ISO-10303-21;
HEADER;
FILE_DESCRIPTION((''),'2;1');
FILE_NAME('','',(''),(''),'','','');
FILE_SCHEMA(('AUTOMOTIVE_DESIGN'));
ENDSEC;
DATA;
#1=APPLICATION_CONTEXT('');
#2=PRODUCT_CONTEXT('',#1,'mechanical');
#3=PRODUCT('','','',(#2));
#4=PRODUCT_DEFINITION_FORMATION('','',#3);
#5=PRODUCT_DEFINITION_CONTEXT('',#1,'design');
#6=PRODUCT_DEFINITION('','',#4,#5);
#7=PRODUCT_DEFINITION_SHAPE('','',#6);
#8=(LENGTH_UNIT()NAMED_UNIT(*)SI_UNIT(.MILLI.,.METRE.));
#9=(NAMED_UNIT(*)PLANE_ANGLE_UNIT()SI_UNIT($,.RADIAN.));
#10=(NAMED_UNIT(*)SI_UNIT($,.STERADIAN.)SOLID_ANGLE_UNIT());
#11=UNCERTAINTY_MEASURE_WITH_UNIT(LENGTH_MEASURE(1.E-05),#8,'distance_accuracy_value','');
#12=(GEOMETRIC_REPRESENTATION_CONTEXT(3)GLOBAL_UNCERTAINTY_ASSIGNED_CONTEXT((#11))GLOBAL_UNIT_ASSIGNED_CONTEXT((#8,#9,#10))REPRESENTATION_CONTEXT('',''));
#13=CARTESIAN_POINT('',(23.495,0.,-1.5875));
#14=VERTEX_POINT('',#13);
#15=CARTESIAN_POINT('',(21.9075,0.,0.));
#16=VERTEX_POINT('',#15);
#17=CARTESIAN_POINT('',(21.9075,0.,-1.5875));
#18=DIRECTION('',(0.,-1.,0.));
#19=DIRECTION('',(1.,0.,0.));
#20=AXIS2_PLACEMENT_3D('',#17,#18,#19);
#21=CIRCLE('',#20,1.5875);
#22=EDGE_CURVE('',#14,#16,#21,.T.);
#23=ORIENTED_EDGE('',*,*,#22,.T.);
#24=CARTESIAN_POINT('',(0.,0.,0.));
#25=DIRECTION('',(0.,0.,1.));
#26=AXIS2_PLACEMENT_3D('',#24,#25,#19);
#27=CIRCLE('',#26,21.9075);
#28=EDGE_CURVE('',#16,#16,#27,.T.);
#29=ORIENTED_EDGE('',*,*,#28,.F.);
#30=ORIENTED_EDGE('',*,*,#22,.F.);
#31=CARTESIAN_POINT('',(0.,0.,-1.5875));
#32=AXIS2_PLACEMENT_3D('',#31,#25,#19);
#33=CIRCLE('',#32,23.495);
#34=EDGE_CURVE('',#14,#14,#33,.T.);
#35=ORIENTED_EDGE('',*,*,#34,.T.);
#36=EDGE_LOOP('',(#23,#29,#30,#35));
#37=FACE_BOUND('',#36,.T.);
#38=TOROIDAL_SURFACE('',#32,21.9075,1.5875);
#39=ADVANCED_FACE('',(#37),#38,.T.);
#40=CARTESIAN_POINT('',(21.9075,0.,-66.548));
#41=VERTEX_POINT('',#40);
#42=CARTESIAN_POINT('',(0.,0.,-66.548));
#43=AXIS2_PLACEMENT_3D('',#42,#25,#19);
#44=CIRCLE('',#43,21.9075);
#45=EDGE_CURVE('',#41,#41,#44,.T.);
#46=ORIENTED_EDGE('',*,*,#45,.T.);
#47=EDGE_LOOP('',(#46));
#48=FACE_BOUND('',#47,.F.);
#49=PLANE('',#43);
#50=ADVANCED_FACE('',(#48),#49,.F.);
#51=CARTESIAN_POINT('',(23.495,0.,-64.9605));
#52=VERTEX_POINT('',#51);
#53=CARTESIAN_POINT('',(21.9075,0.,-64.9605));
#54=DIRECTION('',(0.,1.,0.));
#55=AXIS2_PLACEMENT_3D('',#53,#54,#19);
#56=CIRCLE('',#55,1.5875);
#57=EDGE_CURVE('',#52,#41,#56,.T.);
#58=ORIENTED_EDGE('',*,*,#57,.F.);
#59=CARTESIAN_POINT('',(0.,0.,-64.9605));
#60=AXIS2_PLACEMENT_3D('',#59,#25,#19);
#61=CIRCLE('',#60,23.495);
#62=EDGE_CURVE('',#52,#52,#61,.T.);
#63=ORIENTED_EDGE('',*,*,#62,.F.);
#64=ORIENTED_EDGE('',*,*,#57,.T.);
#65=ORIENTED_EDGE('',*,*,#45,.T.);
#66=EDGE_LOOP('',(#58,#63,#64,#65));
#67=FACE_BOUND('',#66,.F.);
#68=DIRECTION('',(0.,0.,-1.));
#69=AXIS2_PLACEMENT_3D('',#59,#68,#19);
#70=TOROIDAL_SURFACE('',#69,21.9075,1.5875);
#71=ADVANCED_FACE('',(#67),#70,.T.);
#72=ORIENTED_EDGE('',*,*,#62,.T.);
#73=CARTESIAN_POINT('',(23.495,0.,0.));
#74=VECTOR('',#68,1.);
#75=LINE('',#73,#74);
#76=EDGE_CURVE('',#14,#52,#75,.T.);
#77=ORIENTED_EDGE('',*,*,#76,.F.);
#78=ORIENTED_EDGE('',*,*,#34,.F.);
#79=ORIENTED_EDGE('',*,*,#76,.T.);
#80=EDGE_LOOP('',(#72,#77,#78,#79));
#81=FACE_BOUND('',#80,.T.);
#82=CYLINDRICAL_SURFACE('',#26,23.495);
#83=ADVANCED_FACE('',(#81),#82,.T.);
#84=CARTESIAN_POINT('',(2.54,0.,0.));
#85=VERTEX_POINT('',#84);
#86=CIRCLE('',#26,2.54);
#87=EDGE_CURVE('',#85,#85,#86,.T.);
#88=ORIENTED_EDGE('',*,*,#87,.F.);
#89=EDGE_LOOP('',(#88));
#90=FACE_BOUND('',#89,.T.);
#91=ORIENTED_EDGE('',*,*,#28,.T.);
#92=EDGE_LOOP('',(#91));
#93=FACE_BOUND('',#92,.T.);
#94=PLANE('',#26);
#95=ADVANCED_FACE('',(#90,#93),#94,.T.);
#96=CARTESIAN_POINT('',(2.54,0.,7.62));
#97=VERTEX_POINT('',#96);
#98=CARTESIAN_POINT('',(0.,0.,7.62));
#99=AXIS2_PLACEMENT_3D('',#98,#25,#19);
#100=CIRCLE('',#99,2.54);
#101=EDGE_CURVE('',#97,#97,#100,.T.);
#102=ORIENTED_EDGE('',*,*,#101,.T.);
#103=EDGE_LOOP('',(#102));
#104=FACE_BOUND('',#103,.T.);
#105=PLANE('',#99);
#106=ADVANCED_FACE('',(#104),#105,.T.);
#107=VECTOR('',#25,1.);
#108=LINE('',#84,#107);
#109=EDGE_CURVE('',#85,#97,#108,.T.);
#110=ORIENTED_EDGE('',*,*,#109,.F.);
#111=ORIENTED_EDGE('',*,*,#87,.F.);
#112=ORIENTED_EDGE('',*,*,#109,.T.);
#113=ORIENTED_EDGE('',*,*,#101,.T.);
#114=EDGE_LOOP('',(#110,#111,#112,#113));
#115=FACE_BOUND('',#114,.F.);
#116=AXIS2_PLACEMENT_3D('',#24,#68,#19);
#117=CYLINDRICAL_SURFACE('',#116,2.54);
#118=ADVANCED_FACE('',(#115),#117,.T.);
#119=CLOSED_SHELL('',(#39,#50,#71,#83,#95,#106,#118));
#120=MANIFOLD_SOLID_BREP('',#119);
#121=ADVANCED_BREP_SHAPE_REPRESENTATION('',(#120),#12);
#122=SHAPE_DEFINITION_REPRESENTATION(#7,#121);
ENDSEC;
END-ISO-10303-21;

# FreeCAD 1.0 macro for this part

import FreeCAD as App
import Part
import Sketcher

V = App.Vector
Q = App.Units.Quantity


def edges_at(feature, points):
    """Names of the edges that pass closest to the given points."""
    edges = feature.Shape.Edges
    near = lambda p: min(range(len(edges)), key=lambda i: edges[i].distToShape(Part.Vertex(*p))[0])
    return sorted({f"Edge{near(p) + 1}" for p in points})

doc = App.newDocument("Part")
body = doc.addObject("PartDesign::Body", "Body")

sketch1 = body.newObject("Sketcher::SketchObject", "Sketch")
sketch1.AttachmentSupport = (doc.getObject("XY_Plane"), [""])
sketch1.MapMode = "FlatFace"
sketch1.addGeometry(Part.Circle(V(0, 0, 0), V(0, 0, 1), 23), False)
sketch1.addConstraint([
    Sketcher.Constraint("Coincident", 0, 3, -1, 1),
    Sketcher.Constraint("Diameter", 0, Q("1.85 in")),
])
pad1 = body.newObject("PartDesign::Pad", "Pad")
pad1.Profile = sketch1
pad1.Length = Q("2.62 in")
pad1.Reversed = True

sketch2 = body.newObject("Sketcher::SketchObject", "Sketch001")
sketch2.AttachmentSupport = (doc.getObject("XY_Plane"), [""])
sketch2.MapMode = "FlatFace"
sketch2.addGeometry(Part.Circle(V(0, 0, 0), V(0, 0, 1), 2.5), False)
sketch2.addConstraint([
    Sketcher.Constraint("Coincident", 0, 3, -1, 1),
    Sketcher.Constraint("Diameter", 0, Q("0.2 in")),
])
pad2 = body.newObject("PartDesign::Pad", "Pad001")
pad2.Profile = sketch2
pad2.Length = Q("0.3 in")
doc.recompute()

fillet = body.newObject("PartDesign::Fillet", "Fillet")
fillet.Base = (pad2, edges_at(pad2, [(-23.495, 0, 0)]))
fillet.Radius = Q("0.0625 in")
doc.recompute()

fillet2 = body.newObject("PartDesign::Fillet", "Fillet001")
fillet2.Base = (fillet, edges_at(fillet, [(-23.495, 0, -66.548)]))
fillet2.Radius = Q("0.0625 in")

doc.recompute()
